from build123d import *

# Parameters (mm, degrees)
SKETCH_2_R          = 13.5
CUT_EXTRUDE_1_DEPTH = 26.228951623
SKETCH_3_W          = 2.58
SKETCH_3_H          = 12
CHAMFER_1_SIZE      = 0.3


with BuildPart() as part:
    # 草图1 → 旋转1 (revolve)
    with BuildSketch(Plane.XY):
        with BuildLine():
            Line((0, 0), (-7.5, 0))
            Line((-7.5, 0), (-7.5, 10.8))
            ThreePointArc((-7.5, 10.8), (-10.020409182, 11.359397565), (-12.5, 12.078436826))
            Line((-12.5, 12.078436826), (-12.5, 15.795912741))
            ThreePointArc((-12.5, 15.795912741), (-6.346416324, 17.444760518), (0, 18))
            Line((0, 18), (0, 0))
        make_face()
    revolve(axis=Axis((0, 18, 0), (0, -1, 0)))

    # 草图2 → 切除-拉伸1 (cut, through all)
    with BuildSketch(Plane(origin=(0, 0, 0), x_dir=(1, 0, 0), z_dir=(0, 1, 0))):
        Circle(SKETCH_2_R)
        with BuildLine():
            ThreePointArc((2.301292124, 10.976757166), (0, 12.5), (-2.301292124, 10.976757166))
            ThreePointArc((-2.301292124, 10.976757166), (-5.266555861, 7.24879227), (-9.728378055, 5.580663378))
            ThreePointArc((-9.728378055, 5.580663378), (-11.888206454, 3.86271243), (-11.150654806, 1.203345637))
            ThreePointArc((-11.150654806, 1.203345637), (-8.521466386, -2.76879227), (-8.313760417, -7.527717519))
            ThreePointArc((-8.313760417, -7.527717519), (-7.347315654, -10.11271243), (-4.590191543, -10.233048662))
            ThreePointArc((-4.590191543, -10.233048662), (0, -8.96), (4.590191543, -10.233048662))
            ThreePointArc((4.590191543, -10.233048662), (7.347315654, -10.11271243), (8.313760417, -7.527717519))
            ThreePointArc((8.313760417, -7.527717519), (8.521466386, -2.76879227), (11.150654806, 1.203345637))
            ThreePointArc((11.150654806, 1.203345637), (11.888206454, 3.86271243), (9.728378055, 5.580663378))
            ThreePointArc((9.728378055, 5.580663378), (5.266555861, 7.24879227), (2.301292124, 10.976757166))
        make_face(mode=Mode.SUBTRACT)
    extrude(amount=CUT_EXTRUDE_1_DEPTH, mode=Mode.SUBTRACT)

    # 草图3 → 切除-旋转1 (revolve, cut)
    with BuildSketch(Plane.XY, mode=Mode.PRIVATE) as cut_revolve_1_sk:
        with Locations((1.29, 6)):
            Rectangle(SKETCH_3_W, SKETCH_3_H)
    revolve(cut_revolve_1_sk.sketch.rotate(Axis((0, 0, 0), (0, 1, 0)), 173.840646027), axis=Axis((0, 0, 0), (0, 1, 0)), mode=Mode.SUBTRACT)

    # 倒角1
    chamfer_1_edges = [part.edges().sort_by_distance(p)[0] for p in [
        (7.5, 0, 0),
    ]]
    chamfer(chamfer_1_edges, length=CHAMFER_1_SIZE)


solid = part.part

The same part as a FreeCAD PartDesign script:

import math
import FreeCAD as App
import Part
import Sketcher
from FreeCAD import Vector
Q = App.Units.Quantity


def edges_at(feature, points):
    """Names of the edges that pass closest to the given points."""
    edges = feature.Shape.Edges
    near = lambda p: min(range(len(edges)), key=lambda i: edges[i].distToShape(Part.Vertex(*p))[0])
    return sorted({f"Edge{near(p) + 1}" for p in points})

doc = App.newDocument("Part")
body = doc.addObject("PartDesign::Body", "Body")

# Sketch on XY plane
sketch1 = body.newObject("Sketcher::SketchObject", "Sketch")
sketch1.AttachmentSupport = (doc.getObject("XY_Plane"), [""])
sketch1.MapMode = "FlatFace"
sketch1.addGeometry([
    Part.LineSegment(Vector(-7.5, 0, 0), Vector(0, 0, 0)),  # 0
    Part.LineSegment(Vector(0, 0, 0), Vector(0, 18, 0)),  # 1
    Part.ArcOfCircle(Part.Circle(Vector(0, -18.5, 0), Vector(0, 0, 1), 36.5), math.radians(90), math.radians(110)),  # 2
    Part.LineSegment(Vector(-12.5, 15.8, 0), Vector(-12.5, 12.1, 0)),  # 3
    Part.ArcOfCircle(Part.Circle(Vector(0, 50.5, 0), Vector(0, 0, 1), 40.5), math.radians(-108), math.radians(-100.69)),  # 4
    Part.LineSegment(Vector(-7.5, 10.8, 0), Vector(-7.5, 0, 0)),  # 5
], False)
sketch1.addConstraint([
    Sketcher.Constraint("Coincident", 0, 2, 1, 1),
    Sketcher.Constraint("Coincident", 1, 2, 2, 1),
    Sketcher.Constraint("Coincident", 2, 2, 3, 1),
    Sketcher.Constraint("Coincident", 3, 2, 4, 1),
    Sketcher.Constraint("Coincident", 4, 2, 5, 1),
    Sketcher.Constraint("Coincident", 5, 2, 0, 1),
    Sketcher.Constraint("Horizontal", 0),
    Sketcher.Constraint("Vertical", 1),
    Sketcher.Constraint("Vertical", 3),
    Sketcher.Constraint("Vertical", 5),
    Sketcher.Constraint("Coincident", 0, 2, -1, 1),
    Sketcher.Constraint("PointOnObject", 2, 3, -2),
    Sketcher.Constraint("PointOnObject", 4, 3, -2),
    Sketcher.Constraint("DistanceY", 1, 1, 1, 2, Q("18 mm")),
    Sketcher.Constraint("DistanceX", 0, 1, 0, 2, Q("7.5 mm")),
    Sketcher.Constraint("DistanceY", 5, 2, 5, 1, Q("10.8 mm")),
    Sketcher.Constraint("DistanceX", 3, 2, 4, 2, Q("5 mm")),
    Sketcher.Constraint("Radius", 4, Q("40.45085 mm")),
    Sketcher.Constraint("Radius", 2, Q("36.547555 mm")),
])
revolution = body.newObject("PartDesign::Revolution", "Revolution")
revolution.Profile = sketch1
revolution.ReferenceAxis = (sketch1, ["V_Axis"])
revolution.Angle = 360

# Sketch on XZ plane
sketch2 = body.newObject("Sketcher::SketchObject", "Sketch001")
sketch2.AttachmentSupport = (doc.getObject("XZ_Plane"), [""])
sketch2.MapMode = "FlatFace"
sketch2.addGeometry([
    Part.Circle(Vector(0, 0, 0), Vector(0, 0, 1), 13.5),  # 0
    Part.ArcOfCircle(Part.Circle(Vector(0, -10, 0), Vector(0, 0, 1), 2.5), math.radians(-157), math.radians(-23)),  # 1
    Part.ArcOfCircle(Part.Circle(Vector(10.5, -14.5, 0), Vector(0, 0, 1), 8.9), math.radians(95), math.radians(157)),  # 2
    Part.ArcOfCircle(Part.Circle(Vector(9.5, -3.1, 0), Vector(0, 0, 1), 2.5), math.radians(-85), math.radians(49)),  # 3
    Part.ArcOfCircle(Part.Circle(Vector(17, 5.5, 0), Vector(0, 0, 1), 8.9), math.radians(167), math.radians(229)),  # 4
    Part.ArcOfCircle(Part.Circle(Vector(5.9, 8.1, 0), Vector(0, 0, 1), 2.5), math.radians(-13), math.radians(121)),  # 5
    Part.ArcOfCircle(Part.Circle(Vector(0, 17.9, 0), Vector(0, 0, 1), 8.9), math.radians(-121), math.radians(-59)),  # 6
    Part.ArcOfCircle(Part.Circle(Vector(-5.9, 8.1, 0), Vector(0, 0, 1), 2.5), math.radians(59), math.radians(193)),  # 7
    Part.ArcOfCircle(Part.Circle(Vector(-17, 5.5, 0), Vector(0, 0, 1), 8.9), math.radians(-49), math.radians(13)),  # 8
    Part.ArcOfCircle(Part.Circle(Vector(-9.5, -3.1, 0), Vector(0, 0, 1), 2.5), math.radians(131), math.radians(265)),  # 9
    Part.ArcOfCircle(Part.Circle(Vector(-10.5, -14.5, 0), Vector(0, 0, 1), 8.9), math.radians(23), math.radians(85)),  # 10
], False)
sketch2.addConstraint([
    Sketcher.Constraint("Tangent", 1, 2, 2, 2),
    Sketcher.Constraint("Tangent", 2, 1, 3, 1),
    Sketcher.Constraint("Tangent", 3, 2, 4, 2),
    Sketcher.Constraint("Tangent", 4, 1, 5, 1),
    Sketcher.Constraint("Tangent", 5, 2, 6, 2),
    Sketcher.Constraint("Tangent", 6, 1, 7, 1),
    Sketcher.Constraint("Tangent", 7, 2, 8, 2),
    Sketcher.Constraint("Tangent", 8, 1, 9, 1),
    Sketcher.Constraint("Tangent", 9, 2, 10, 2),
    Sketcher.Constraint("Tangent", 10, 1, 1, 1),
    Sketcher.Constraint("Coincident", 0, 3, -1, 1),
    Sketcher.Constraint("Equal", 1, 3),
    Sketcher.Constraint("Equal", 2, 4),
    Sketcher.Constraint("Equal", 3, 5),
    Sketcher.Constraint("Equal", 4, 6),
    Sketcher.Constraint("Equal", 5, 7),
    Sketcher.Constraint("Equal", 6, 8),
    Sketcher.Constraint("Equal", 7, 9),
    Sketcher.Constraint("Equal", 8, 10),
    Sketcher.Constraint("Symmetric", 5, 3, 7, 3, -2),
    Sketcher.Constraint("Symmetric", 3, 3, 9, 3, -2),
    Sketcher.Constraint("PointOnObject", 1, 3, -2),
    Sketcher.Constraint("Diameter", 0, Q("27 mm")),
    Sketcher.Constraint("Radius", 1, Q("2.5 mm")),
    Sketcher.Constraint("DistanceY", 1, 3, -1, 1, Q("10 mm")),
    Sketcher.Constraint("Radius", 2, Q("8.911879 mm")),
    Sketcher.Constraint("DistanceX", 3, 3, 4, 3, Q("7.486602 mm")),
    Sketcher.Constraint("DistanceY", 3, 3, -1, 1, Q("3.09017 mm")),
    Sketcher.Constraint("DistanceY", -1, 1, 5, 3, Q("8.09017 mm")),
    Sketcher.Constraint("DistanceY", -1, 1, 6, 3, Q("17.871879 mm")),
])
pocket1 = body.newObject("PartDesign::Pocket", "Pocket")
pocket1.Profile = sketch2
pocket1.Type = "ThroughAll"

# Sketch on XY plane
sketch3 = body.newObject("Sketcher::SketchObject", "Sketch002")
sketch3.AttachmentSupport = (doc.getObject("XY_Plane"), [""])
sketch3.MapMode = "FlatFace"
sketch3.addGeometry([
    Part.LineSegment(Vector(0, 12, 0), Vector(0, 0, 0)),
    Part.LineSegment(Vector(0, 0, 0), Vector(2.6, 0, 0)),
    Part.LineSegment(Vector(2.6, 0, 0), Vector(2.6, 12, 0)),
    Part.LineSegment(Vector(2.6, 12, 0), Vector(0, 12, 0)),
], False)
sketch3.addConstraint([
    Sketcher.Constraint("Coincident", 0, 2, 1, 1),
    Sketcher.Constraint("Coincident", 1, 2, 2, 1),
    Sketcher.Constraint("Coincident", 2, 2, 3, 1),
    Sketcher.Constraint("Coincident", 3, 2, 0, 1),
    Sketcher.Constraint("Vertical", 0),
    Sketcher.Constraint("Horizontal", 1),
    Sketcher.Constraint("Vertical", 2),
    Sketcher.Constraint("Horizontal", 3),
    Sketcher.Constraint("Coincident", 0, 2, -1, 1),
    Sketcher.Constraint("DistanceY", 0, 2, 0, 1, Q("12 mm")),
    Sketcher.Constraint("DistanceX", 1, 1, 1, 2, Q("2.58 mm")),
])
groove = body.newObject("PartDesign::Groove", "Groove")
groove.Profile = sketch3
groove.ReferenceAxis = (sketch3, ["V_Axis"])
groove.Angle = 360
doc.recompute()

chamfer = body.newObject("PartDesign::Chamfer", "Chamfer")
chamfer.Base = (groove, edges_at(groove, [(7.5, 0, 0)]))
chamfer.Size = 0.3

doc.recompute()
